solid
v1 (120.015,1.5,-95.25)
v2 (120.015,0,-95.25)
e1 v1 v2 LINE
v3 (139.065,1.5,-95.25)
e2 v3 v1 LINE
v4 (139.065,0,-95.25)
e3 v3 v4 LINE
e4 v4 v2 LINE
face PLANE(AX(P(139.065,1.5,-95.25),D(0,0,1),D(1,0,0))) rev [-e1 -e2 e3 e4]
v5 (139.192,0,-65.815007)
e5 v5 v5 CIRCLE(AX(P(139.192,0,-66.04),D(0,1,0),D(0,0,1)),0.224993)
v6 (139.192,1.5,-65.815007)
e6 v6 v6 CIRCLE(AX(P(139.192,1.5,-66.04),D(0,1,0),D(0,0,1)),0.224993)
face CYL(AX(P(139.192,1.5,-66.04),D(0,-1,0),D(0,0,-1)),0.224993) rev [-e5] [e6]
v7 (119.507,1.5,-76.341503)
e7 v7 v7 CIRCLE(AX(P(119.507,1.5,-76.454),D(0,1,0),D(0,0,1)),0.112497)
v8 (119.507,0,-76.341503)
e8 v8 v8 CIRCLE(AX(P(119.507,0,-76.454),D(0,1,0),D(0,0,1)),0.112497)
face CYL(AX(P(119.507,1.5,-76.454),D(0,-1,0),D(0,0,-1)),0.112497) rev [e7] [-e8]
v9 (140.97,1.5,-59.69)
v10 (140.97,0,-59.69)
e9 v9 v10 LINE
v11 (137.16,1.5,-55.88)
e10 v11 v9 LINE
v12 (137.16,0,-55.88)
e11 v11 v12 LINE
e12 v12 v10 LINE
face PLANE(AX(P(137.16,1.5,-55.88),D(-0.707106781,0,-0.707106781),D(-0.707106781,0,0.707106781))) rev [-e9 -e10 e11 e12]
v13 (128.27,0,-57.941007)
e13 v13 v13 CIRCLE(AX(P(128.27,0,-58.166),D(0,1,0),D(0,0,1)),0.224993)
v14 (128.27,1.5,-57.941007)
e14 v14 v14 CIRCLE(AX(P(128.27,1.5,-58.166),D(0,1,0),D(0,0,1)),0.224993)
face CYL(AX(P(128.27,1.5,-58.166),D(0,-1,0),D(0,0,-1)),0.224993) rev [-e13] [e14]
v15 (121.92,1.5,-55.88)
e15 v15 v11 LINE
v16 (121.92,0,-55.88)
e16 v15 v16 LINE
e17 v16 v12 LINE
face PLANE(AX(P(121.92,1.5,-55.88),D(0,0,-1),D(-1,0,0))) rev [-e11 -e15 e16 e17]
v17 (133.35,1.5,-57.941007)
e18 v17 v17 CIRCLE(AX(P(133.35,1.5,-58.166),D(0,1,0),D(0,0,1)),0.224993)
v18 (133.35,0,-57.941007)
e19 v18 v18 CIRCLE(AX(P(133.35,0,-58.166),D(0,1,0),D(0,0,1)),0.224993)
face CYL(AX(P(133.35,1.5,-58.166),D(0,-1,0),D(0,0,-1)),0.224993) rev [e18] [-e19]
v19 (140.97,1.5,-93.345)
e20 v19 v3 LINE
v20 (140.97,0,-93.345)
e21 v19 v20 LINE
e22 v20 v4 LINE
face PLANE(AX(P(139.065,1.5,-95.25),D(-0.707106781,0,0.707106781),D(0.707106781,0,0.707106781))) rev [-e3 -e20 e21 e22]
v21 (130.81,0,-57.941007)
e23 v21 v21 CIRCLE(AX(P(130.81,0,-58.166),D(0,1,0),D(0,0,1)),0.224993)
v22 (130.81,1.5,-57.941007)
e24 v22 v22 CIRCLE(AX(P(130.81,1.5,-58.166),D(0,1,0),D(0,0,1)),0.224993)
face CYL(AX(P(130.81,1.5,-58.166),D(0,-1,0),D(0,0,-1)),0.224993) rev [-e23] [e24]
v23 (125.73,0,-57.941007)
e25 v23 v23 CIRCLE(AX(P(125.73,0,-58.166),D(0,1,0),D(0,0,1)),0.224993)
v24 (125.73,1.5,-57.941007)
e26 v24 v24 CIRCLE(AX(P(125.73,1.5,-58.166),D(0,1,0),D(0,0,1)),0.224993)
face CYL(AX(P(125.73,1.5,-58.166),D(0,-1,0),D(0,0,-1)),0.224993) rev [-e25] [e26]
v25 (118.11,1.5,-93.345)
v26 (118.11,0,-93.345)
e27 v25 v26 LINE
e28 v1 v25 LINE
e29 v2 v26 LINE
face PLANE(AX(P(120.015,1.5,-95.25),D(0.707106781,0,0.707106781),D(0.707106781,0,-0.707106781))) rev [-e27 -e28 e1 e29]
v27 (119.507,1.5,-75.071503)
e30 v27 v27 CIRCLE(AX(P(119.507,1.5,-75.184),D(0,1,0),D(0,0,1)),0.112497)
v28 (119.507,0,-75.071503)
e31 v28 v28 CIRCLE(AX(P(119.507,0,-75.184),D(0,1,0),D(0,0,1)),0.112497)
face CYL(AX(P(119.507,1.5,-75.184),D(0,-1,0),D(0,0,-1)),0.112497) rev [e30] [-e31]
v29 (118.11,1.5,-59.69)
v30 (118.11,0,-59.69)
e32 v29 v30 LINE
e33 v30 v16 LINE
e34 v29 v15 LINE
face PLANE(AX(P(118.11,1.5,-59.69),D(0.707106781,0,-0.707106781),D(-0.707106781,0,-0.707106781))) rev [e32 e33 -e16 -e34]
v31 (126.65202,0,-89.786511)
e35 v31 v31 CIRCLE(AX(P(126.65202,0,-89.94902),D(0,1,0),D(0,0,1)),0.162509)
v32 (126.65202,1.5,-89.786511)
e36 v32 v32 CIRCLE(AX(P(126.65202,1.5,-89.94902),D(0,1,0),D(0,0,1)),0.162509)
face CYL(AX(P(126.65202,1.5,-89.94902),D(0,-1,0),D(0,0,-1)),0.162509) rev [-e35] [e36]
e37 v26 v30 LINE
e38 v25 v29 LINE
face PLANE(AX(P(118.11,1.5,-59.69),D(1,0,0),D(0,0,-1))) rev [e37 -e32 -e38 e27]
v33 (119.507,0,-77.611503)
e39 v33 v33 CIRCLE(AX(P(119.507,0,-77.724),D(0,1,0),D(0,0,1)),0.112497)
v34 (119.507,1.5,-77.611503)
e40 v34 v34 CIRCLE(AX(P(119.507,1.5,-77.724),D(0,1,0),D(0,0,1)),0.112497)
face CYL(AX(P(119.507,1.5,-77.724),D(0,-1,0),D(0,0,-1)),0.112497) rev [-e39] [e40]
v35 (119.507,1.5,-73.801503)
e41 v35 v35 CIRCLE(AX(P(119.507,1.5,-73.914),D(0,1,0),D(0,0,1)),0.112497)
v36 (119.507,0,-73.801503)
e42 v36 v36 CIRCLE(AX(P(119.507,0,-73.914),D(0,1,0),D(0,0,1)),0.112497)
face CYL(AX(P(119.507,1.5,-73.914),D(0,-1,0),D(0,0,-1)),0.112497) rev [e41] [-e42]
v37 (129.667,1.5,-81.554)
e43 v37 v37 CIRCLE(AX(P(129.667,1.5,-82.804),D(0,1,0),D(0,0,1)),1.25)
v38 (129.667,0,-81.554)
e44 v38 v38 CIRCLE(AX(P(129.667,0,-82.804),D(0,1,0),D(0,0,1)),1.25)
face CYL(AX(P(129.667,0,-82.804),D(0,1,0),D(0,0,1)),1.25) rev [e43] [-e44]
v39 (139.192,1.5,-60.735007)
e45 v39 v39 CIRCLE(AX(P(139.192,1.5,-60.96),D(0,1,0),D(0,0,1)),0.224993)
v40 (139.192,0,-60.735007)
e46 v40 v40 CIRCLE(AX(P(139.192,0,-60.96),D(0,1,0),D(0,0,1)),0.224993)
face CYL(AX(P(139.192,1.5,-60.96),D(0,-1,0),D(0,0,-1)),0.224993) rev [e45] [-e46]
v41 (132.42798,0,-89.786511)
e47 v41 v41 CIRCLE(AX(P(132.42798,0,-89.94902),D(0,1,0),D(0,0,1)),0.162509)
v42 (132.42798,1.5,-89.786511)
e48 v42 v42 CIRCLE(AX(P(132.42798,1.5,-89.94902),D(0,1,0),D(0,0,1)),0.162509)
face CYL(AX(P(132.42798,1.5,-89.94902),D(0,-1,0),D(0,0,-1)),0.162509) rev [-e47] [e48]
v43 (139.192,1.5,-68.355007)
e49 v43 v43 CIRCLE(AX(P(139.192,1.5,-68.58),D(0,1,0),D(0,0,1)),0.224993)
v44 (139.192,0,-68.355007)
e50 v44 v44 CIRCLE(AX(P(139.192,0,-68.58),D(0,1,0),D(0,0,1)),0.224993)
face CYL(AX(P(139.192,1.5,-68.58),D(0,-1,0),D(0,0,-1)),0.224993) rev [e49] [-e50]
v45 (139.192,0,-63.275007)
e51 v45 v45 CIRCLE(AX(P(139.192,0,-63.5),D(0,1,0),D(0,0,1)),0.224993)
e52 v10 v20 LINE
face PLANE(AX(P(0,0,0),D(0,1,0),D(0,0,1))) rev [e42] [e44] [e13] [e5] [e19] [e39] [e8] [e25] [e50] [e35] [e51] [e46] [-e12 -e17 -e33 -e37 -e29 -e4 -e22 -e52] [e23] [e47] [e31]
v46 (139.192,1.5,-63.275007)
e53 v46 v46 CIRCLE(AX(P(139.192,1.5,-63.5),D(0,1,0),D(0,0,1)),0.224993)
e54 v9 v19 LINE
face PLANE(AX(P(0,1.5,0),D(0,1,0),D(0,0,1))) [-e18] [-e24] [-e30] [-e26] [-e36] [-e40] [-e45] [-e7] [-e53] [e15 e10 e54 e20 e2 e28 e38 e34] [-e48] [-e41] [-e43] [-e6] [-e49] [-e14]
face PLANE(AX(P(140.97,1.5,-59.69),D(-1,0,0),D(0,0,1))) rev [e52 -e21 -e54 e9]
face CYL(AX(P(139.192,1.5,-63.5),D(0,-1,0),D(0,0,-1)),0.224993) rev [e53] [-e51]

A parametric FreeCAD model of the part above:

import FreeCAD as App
import Part
import Sketcher
from FreeCAD import Vector
Q = App.Units.Quantity


def add_polygon(sketch, points):
    """Adds a closed chain of lines whose ends are joined by coincident constraints."""
    first, n = sketch.GeometryCount, len(points)
    for a, b in zip(points, points[1:] + points[:1]):
        sketch.addGeometry(Part.LineSegment(App.Vector(*a, 0), App.Vector(*b, 0)), False)
    for i in range(n):
        sketch.addConstraint(Sketcher.Constraint("Coincident", first + i, 2, first + (i + 1) % n, 1))

doc = App.newDocument("Part")
params = doc.addObject("Spreadsheet::Sheet", "Params")
for row, (alias, value) in enumerate([
    ("sketch1_width", "0.6 in"),
    ("sketch1_width2", "0.75 in"),
    ("sketch1_height", "1.325 in"),
    ("pad1_length", "1.5 mm"),
], start=1):
    params.set(f"A{row}", alias)
    params.set(f"B{row}", "=" + value)
    params.setAlias(f"B{row}", alias)

body = doc.addObject("PartDesign::Body", "Body")

sketch1 = body.newObject("Sketcher::SketchObject", "Sketch")
sketch1.AttachmentSupport = (doc.getObject("XZ_Plane"), [""])
sketch1.MapMode = "FlatFace"
add_polygon(sketch1, [(139.06, -95.25), (120.02, -95.25), (118.11, -93.34), (118.11, -59.69), (121.92, -55.88), (137.16, -55.88), (140.97, -59.69), (140.97, -93.34)])
sketch1.addGeometry(Part.Circle(Vector(125.73, -58.17, 0), Vector(0, 0, 1), 0.22), False)
sketch1.addGeometry(Part.Circle(Vector(128.27, -58.17, 0), Vector(0, 0, 1), 0.22), False)
sketch1.addGeometry(Part.Circle(Vector(119.51, -73.91, 0), Vector(0, 0, 1), 0.11), False)
sketch1.addGeometry(Part.Circle(Vector(130.81, -58.17, 0), Vector(0, 0, 1), 0.22), False)
sketch1.addGeometry(Part.Circle(Vector(133.35, -58.17, 0), Vector(0, 0, 1), 0.22), False)
sketch1.addGeometry(Part.Circle(Vector(139.19, -60.96, 0), Vector(0, 0, 1), 0.22), False)
sketch1.addGeometry(Part.Circle(Vector(139.19, -63.5, 0), Vector(0, 0, 1), 0.22), False)
sketch1.addGeometry(Part.Circle(Vector(139.19, -66.04, 0), Vector(0, 0, 1), 0.22), False)
sketch1.addGeometry(Part.Circle(Vector(139.19, -68.58, 0), Vector(0, 0, 1), 0.22), False)
sketch1.addGeometry(Part.Circle(Vector(119.51, -75.18, 0), Vector(0, 0, 1), 0.11), False)
sketch1.addGeometry(Part.Circle(Vector(119.51, -76.45, 0), Vector(0, 0, 1), 0.11), False)
sketch1.addGeometry(Part.Circle(Vector(119.51, -77.72, 0), Vector(0, 0, 1), 0.11), False)
sketch1.addGeometry(Part.Circle(Vector(126.65, -89.95, 0), Vector(0, 0, 1), 0.16), False)
sketch1.addGeometry(Part.Circle(Vector(132.43, -89.95, 0), Vector(0, 0, 1), 0.16), False)
sketch1.addConstraint(Sketcher.Constraint("Horizontal", 0))
sketch1.addConstraint(Sketcher.Constraint("Vertical", 2))
sketch1.addConstraint(Sketcher.Constraint("Horizontal", 4))
sketch1.addConstraint(Sketcher.Constraint("Vertical", 6))
sketch1.addConstraint(Sketcher.Constraint("Equal", 8, 9))
sketch1.addConstraint(Sketcher.Constraint("Equal", 9, 11))
sketch1.addConstraint(Sketcher.Constraint("Equal", 11, 12))
sketch1.addConstraint(Sketcher.Constraint("Equal", 12, 13))
sketch1.addConstraint(Sketcher.Constraint("Equal", 13, 14))
sketch1.addConstraint(Sketcher.Constraint("Equal", 14, 15))
sketch1.addConstraint(Sketcher.Constraint("Equal", 15, 16))
sketch1.addConstraint(Sketcher.Constraint("Equal", 10, 17))
sketch1.addConstraint(Sketcher.Constraint("Equal", 17, 18))
sketch1.addConstraint(Sketcher.Constraint("Equal", 18, 19))
sketch1.addConstraint(Sketcher.Constraint("Equal", 20, 21))
sketch1.addConstraint(Sketcher.Constraint("Perpendicular", 1, 3))
sketch1.addConstraint(Sketcher.Constraint("Perpendicular", 3, 5))
sketch1.addConstraint(Sketcher.Constraint("Perpendicular", 5, 7))
sketch1.addConstraint(Sketcher.Constraint("Horizontal", 8, 3, 9, 3))
sketch1.addConstraint(Sketcher.Constraint("Horizontal", 9, 3, 11, 3))
sketch1.addConstraint(Sketcher.Constraint("Horizontal", 11, 3, 12, 3))
sketch1.addConstraint(Sketcher.Constraint("Horizontal", 20, 3, 21, 3))
sketch1.addConstraint(Sketcher.Constraint("Horizontal", 2, 2, 5, 2))
sketch1.addConstraint(Sketcher.Constraint("Horizontal", 1, 2, 6, 2))
sketch1.addConstraint(Sketcher.Constraint("Vertical", 13, 3, 14, 3))
sketch1.addConstraint(Sketcher.Constraint("Vertical", 14, 3, 15, 3))
sketch1.addConstraint(Sketcher.Constraint("Vertical", 15, 3, 16, 3))
sketch1.addConstraint(Sketcher.Constraint("Vertical", 10, 3, 17, 3))
sketch1.addConstraint(Sketcher.Constraint("Vertical", 17, 3, 18, 3))
sketch1.addConstraint(Sketcher.Constraint("Vertical", 18, 3, 19, 3))
sketch1.addConstraint(Sketcher.Constraint("Equal", 3, 5))
sketch1.addConstraint(Sketcher.Constraint("DistanceX", 4, 1, 4, 2, Q("0.6 in")))
sketch1.addConstraint(Sketcher.Constraint("DistanceX", 0, 2, 0, 1, Q("0.75 in")))
sketch1.addConstraint(Sketcher.Constraint("DistanceY", 13, 3, -1, 1, Q("2.4 in")))
sketch1.addConstraint(Sketcher.Constraint("DistanceY", 14, 3, -1, 1, Q("2.5 in")))
sketch1.addConstraint(Sketcher.Constraint("DistanceY", 15, 3, -1, 1, Q("2.6 in")))
sketch1.addConstraint(Sketcher.Constraint("DistanceY", 16, 3, -1, 1, Q("2.7 in")))
sketch1.addConstraint(Sketcher.Constraint("DistanceX", -1, 1, 3, 2, Q("4.8 in")))
sketch1.addConstraint(Sketcher.Constraint("DistanceY", 3, 2, -1, 1, Q("2.2 in")))
sketch1.addConstraint(Sketcher.Constraint("DistanceX", 8, 3, 9, 3, Q("0.1 in")))
sketch1.addConstraint(Sketcher.Constraint("DistanceX", 9, 3, 11, 3, Q("0.1 in")))
sketch1.addConstraint(Sketcher.Constraint("DistanceX", 11, 3, 12, 3, Q("0.1 in")))
sketch1.addConstraint(Sketcher.Constraint("DistanceY", 18, 3, 10, 3, Q("0.1 in")))
sketch1.addConstraint(Sketcher.Constraint("DistanceY", 19, 3, 17, 3, Q("0.1 in")))
sketch1.addConstraint(Sketcher.Constraint("DistanceX", 2, 2, 8, 3, Q("0.3 in")))
sketch1.addConstraint(Sketcher.Constraint("DistanceX", 12, 3, 5, 2, Q("0.3 in")))
sketch1.addConstraint(Sketcher.Constraint("DistanceY", 2, 1, 2, 2, Q("1.325 in")))
sketch1.addConstraint(Sketcher.Constraint("DistanceY", 8, 3, -1, 1, Q("2.29 in")))
sketch1.addConstraint(Sketcher.Constraint("DistanceY", 10, 3, -1, 1, Q("2.91 in")))
sketch1.addConstraint(Sketcher.Constraint("DistanceX", -1, 1, 13, 3, Q("5.48 in")))
sketch1.addConstraint(Sketcher.Constraint("DistanceY", 17, 3, -1, 1, Q("2.96 in")))
sketch1.addConstraint(Sketcher.Constraint("DistanceX", 19, 3, 0, 2, Q("0.02 in")))
sketch1.addConstraint(Sketcher.Constraint("Diameter", 20, Q("0.325018 mm")))
sketch1.addConstraint(Sketcher.Constraint("Diameter", 8, Q("0.449986 mm")))
sketch1.addConstraint(Sketcher.Constraint("Diameter", 10, Q("0.224993 mm")))
sketch1.addConstraint(Sketcher.Constraint("DistanceX", -1, 1, 20, 3, Q("4.9863 in")))
sketch1.addConstraint(Sketcher.Constraint("DistanceY", 20, 3, -1, 1, Q("3.5413 in")))
sketch1.addConstraint(Sketcher.Constraint("DistanceX", -1, 1, 21, 3, Q("5.2137 in")))
sketch1.setExpression("Constraints[39]", "Params.sketch1_width")
sketch1.setExpression("Constraints[40]", "Params.sketch1_width2")
sketch1.setExpression("Constraints[54]", "Params.sketch1_height")
pad1 = body.newObject("PartDesign::Pad", "Pad")
pad1.Profile = sketch1
pad1.setExpression("Length", "Params.pad1_length")
pad1.Reversed = True

sketch2 = body.newObject("Sketcher::SketchObject", "Sketch001")
sketch2.AttachmentSupport = (doc.getObject("XZ_Plane"), [""])
sketch2.MapMode = "FlatFace"
sketch2.AttachmentOffset = App.Placement(Vector(0, 0, -1.5), App.Rotation())
sketch2.addGeometry(Part.Circle(Vector(129.7, -82.8, 0), Vector(0, 0, 1), 1.2), False)
sketch2.addConstraint(Sketcher.Constraint("Diameter", 0, Q("2.5 mm")))
sketch2.addConstraint(Sketcher.Constraint("DistanceY", 0, 3, -1, 1, Q("3.26 in")))
sketch2.addConstraint(Sketcher.Constraint("DistanceX", -1, 1, 0, 3, Q("5.105 in")))
pocket1 = body.newObject("PartDesign::Pocket", "Pocket")
pocket1.Profile = sketch2
pocket1.Type = "ThroughAll"
pocket1.Reversed = True

doc.recompute()
